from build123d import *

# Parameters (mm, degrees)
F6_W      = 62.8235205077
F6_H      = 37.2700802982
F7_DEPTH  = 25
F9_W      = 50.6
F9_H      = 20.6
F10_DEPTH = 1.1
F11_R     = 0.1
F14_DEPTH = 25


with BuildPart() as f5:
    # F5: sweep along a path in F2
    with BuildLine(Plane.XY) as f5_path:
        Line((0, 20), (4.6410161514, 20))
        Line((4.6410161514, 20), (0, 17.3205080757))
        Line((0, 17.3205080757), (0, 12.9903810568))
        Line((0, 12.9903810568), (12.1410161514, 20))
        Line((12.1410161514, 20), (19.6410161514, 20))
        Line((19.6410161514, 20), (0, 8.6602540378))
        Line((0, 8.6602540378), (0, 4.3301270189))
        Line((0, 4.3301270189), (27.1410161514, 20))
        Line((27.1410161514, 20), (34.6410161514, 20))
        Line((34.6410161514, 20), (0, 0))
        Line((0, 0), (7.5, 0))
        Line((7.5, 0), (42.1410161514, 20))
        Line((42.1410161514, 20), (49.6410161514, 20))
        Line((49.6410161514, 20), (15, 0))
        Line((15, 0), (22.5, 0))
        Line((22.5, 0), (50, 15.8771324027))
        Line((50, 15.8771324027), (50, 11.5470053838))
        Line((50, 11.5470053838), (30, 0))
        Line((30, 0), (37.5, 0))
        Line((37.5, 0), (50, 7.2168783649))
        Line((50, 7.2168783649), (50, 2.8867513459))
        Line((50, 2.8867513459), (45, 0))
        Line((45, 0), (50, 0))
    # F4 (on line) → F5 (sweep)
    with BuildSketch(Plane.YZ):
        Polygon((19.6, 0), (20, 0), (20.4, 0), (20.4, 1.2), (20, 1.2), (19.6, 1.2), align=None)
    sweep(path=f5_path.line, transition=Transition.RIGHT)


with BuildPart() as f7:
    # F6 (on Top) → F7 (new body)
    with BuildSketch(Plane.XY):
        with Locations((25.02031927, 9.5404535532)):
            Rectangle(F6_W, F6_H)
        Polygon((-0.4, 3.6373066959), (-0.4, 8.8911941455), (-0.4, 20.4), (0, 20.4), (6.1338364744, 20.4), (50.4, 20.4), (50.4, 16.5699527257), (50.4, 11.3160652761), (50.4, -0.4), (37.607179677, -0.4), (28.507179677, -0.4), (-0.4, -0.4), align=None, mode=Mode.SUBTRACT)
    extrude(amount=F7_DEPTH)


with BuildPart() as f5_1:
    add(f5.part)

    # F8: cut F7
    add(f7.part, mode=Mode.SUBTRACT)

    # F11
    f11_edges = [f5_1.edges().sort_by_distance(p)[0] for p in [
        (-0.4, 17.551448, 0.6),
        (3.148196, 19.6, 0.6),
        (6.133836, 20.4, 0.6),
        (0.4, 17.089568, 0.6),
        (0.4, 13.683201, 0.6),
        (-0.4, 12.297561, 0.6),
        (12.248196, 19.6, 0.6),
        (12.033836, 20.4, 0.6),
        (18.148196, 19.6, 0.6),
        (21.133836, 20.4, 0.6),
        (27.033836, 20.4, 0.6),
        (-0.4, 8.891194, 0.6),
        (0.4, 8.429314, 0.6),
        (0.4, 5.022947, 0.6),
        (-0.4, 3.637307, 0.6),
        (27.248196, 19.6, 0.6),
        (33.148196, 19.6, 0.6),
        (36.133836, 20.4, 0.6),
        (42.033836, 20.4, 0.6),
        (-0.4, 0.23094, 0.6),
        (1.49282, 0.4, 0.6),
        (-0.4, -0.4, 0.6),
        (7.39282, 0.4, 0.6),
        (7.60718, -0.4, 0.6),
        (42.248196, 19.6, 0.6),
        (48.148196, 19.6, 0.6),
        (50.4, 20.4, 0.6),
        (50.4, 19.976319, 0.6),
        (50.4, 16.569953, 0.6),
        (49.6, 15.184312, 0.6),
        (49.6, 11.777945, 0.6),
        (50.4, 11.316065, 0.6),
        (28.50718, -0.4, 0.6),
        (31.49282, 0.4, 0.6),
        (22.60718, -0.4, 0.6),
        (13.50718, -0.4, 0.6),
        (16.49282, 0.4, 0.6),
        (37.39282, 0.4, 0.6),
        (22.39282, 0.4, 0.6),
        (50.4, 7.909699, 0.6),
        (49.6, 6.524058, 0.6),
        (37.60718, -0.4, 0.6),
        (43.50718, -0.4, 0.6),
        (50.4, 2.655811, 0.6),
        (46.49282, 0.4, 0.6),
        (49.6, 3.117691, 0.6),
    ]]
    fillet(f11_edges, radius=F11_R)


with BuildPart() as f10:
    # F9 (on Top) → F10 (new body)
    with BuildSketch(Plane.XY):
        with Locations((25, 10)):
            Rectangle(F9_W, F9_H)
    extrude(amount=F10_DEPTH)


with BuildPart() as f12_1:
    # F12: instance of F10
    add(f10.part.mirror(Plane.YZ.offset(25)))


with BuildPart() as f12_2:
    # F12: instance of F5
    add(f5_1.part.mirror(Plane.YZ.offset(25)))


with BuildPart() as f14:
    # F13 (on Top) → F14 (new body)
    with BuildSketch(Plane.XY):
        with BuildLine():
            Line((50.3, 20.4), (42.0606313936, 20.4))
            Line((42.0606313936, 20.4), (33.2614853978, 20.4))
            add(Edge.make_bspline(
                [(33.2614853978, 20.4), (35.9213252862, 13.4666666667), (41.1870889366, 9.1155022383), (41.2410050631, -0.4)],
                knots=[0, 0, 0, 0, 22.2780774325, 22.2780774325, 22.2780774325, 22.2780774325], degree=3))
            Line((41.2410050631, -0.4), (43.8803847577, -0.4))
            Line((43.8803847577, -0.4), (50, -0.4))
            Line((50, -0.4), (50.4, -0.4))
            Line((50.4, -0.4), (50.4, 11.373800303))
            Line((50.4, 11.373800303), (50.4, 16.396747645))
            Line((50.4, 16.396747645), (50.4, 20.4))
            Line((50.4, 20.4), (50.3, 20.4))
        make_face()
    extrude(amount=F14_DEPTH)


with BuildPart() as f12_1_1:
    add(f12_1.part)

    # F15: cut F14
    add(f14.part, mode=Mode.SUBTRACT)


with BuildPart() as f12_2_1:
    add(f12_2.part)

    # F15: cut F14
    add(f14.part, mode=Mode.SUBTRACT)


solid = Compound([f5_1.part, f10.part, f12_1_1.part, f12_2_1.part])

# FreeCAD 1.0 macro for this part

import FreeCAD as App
import Part
import Sketcher
from FreeCAD import Vector
Q = App.Units.Quantity


def edges_at(feature, points):
    """Names of the edges that pass closest to the given points."""
    edges = feature.Shape.Edges
    near = lambda p: min(range(len(edges)), key=lambda i: edges[i].distToShape(Part.Vertex(*p))[0])
    return sorted({f"Edge{near(p) + 1}" for p in points})

doc = App.newDocument("Part")
params = doc.addObject("Spreadsheet::Sheet", "Params")
for row, (alias, value) in enumerate([
    ("sketch1_width", "0.8 mm"),
    ("sketch1_height", "1.2 mm"),
    ("sketch2_width", "5 mm"),
    ("sketch2_length", "40 mm"),
    ("sketch2_width2", "7.5 mm"),
    ("sketch3_width", "50.8 mm"),
    ("sketch3_height", "20.8 mm"),
    ("pad1_length", "25 mm"),
    ("fillet_radius", "0.1 mm"),
    ("sketch4_width", "50.6 mm"),
    ("sketch4_height", "20.6 mm"),
    ("pad2_length", "1.1 mm"),
    ("pad3_length", "25 mm"),
], start=1):
    params.set(f"A{row}", alias)
    params.set(f"B{row}", "=" + value)
    params.setAlias(f"B{row}", alias)

body = doc.addObject("PartDesign::Body", "Body")

# Sketch on YZ plane
sketch1 = body.newObject("Sketcher::SketchObject", "Sketch")
sketch1.AttachmentSupport = (doc.getObject("YZ_Plane"), [""])
sketch1.MapMode = "FlatFace"
sketch1.addGeometry(Part.LineSegment(Vector(19.6, 0, 0), Vector(20.4, 0, 0)), False)
sketch1.addGeometry(Part.LineSegment(Vector(20.4, 0, 0), Vector(20.4, 1.2, 0)), False)
sketch1.addGeometry(Part.LineSegment(Vector(20.4, 1.2, 0), Vector(19.6, 1.2, 0)), False)
sketch1.addGeometry(Part.LineSegment(Vector(19.6, 1.2, 0), Vector(19.6, 0, 0)), False)
sketch1.addConstraint(Sketcher.Constraint("Coincident", 0, 2, 1, 1))
sketch1.addConstraint(Sketcher.Constraint("Coincident", 1, 2, 2, 1))
sketch1.addConstraint(Sketcher.Constraint("Coincident", 2, 2, 3, 1))
sketch1.addConstraint(Sketcher.Constraint("Coincident", 3, 2, 0, 1))
sketch1.addConstraint(Sketcher.Constraint("Horizontal", 0))
sketch1.addConstraint(Sketcher.Constraint("Vertical", 1))
sketch1.addConstraint(Sketcher.Constraint("Horizontal", 2))
sketch1.addConstraint(Sketcher.Constraint("Vertical", 3))
sketch1.addConstraint(Sketcher.Constraint("PointOnObject", 0, 2, -1))
sketch1.addConstraint(Sketcher.Constraint("DistanceX", 0, 1, 0, 2, Q("0.8 mm")))
sketch1.addConstraint(Sketcher.Constraint("DistanceY", 1, 1, 1, 2, Q("1.2 mm")))
sketch1.addConstraint(Sketcher.Constraint("DistanceX", -1, 1, 0, 2, Q("20.4 mm")))
sketch1.setExpression("Constraints[9]", "Params.sketch1_width")
sketch1.setExpression("Constraints[10]", "Params.sketch1_height")

# Sketch on XY plane
sketch2 = body.newObject("Sketcher::SketchObject", "Sketch001")
sketch2.AttachmentSupport = (doc.getObject("XY_Plane"), [""])
sketch2.MapMode = "FlatFace"
sketch2.addGeometry(Part.LineSegment(Vector(0, 20, 0), Vector(4.6, 20, 0)), False)
sketch2.addGeometry(Part.LineSegment(Vector(4.6, 20, 0), Vector(0, 17.3, 0)), False)
sketch2.addGeometry(Part.LineSegment(Vector(0, 17.3, 0), Vector(0, 13, 0)), False)
sketch2.addGeometry(Part.LineSegment(Vector(0, 13, 0), Vector(12.1, 20, 0)), False)
sketch2.addGeometry(Part.LineSegment(Vector(12.1, 20, 0), Vector(19.6, 20, 0)), False)
sketch2.addGeometry(Part.LineSegment(Vector(19.6, 20, 0), Vector(0, 8.7, 0)), False)
sketch2.addGeometry(Part.LineSegment(Vector(0, 8.7, 0), Vector(0, 4.3, 0)), False)
sketch2.addGeometry(Part.LineSegment(Vector(0, 4.3, 0), Vector(27.1, 20, 0)), False)
sketch2.addGeometry(Part.LineSegment(Vector(27.1, 20, 0), Vector(34.6, 20, 0)), False)
sketch2.addGeometry(Part.LineSegment(Vector(34.6, 20, 0), Vector(0, 0, 0)), False)
sketch2.addGeometry(Part.LineSegment(Vector(0, 0, 0), Vector(7.5, 0, 0)), False)
sketch2.addGeometry(Part.LineSegment(Vector(7.5, 0, 0), Vector(42.1, 20, 0)), False)
sketch2.addGeometry(Part.LineSegment(Vector(42.1, 20, 0), Vector(49.6, 20, 0)), False)
sketch2.addGeometry(Part.LineSegment(Vector(49.6, 20, 0), Vector(15, 0, 0)), False)
sketch2.addGeometry(Part.LineSegment(Vector(15, 0, 0), Vector(22.5, 0, 0)), False)
sketch2.addGeometry(Part.LineSegment(Vector(22.5, 0, 0), Vector(50, 15.9, 0)), False)
sketch2.addGeometry(Part.LineSegment(Vector(50, 15.9, 0), Vector(50, 11.5, 0)), False)
sketch2.addGeometry(Part.LineSegment(Vector(50, 11.5, 0), Vector(30, 0, 0)), False)
sketch2.addGeometry(Part.LineSegment(Vector(30, 0, 0), Vector(37.5, 0, 0)), False)
sketch2.addGeometry(Part.LineSegment(Vector(37.5, 0, 0), Vector(50, 7.2, 0)), False)
sketch2.addGeometry(Part.LineSegment(Vector(50, 7.2, 0), Vector(50, 2.9, 0)), False)
sketch2.addGeometry(Part.LineSegment(Vector(50, 2.9, 0), Vector(45, 0, 0)), False)
sketch2.addGeometry(Part.LineSegment(Vector(45, 0, 0), Vector(50, 0, 0)), False)
sketch2.addConstraint(Sketcher.Constraint("Coincident", 0, 2, 1, 1))
sketch2.addConstraint(Sketcher.Constraint("Coincident", 1, 2, 2, 1))
sketch2.addConstraint(Sketcher.Constraint("Coincident", 2, 2, 3, 1))
sketch2.addConstraint(Sketcher.Constraint("Coincident", 3, 2, 4, 1))
sketch2.addConstraint(Sketcher.Constraint("Coincident", 4, 2, 5, 1))
sketch2.addConstraint(Sketcher.Constraint("Coincident", 5, 2, 6, 1))
sketch2.addConstraint(Sketcher.Constraint("Coincident", 6, 2, 7, 1))
sketch2.addConstraint(Sketcher.Constraint("Coincident", 7, 2, 8, 1))
sketch2.addConstraint(Sketcher.Constraint("Coincident", 8, 2, 9, 1))
sketch2.addConstraint(Sketcher.Constraint("Coincident", 9, 2, 10, 1))
sketch2.addConstraint(Sketcher.Constraint("Coincident", 10, 2, 11, 1))
sketch2.addConstraint(Sketcher.Constraint("Coincident", 11, 2, 12, 1))
sketch2.addConstraint(Sketcher.Constraint("Coincident", 12, 2, 13, 1))
sketch2.addConstraint(Sketcher.Constraint("Coincident", 13, 2, 14, 1))
sketch2.addConstraint(Sketcher.Constraint("Coincident", 14, 2, 15, 1))
sketch2.addConstraint(Sketcher.Constraint("Coincident", 15, 2, 16, 1))
sketch2.addConstraint(Sketcher.Constraint("Coincident", 16, 2, 17, 1))
sketch2.addConstraint(Sketcher.Constraint("Coincident", 17, 2, 18, 1))
sketch2.addConstraint(Sketcher.Constraint("Coincident", 18, 2, 19, 1))
sketch2.addConstraint(Sketcher.Constraint("Coincident", 19, 2, 20, 1))
sketch2.addConstraint(Sketcher.Constraint("Coincident", 20, 2, 21, 1))
sketch2.addConstraint(Sketcher.Constraint("Coincident", 21, 2, 22, 1))
sketch2.addConstraint(Sketcher.Constraint("Horizontal", 0))
sketch2.addConstraint(Sketcher.Constraint("Vertical", 2))
sketch2.addConstraint(Sketcher.Constraint("Horizontal", 4))
sketch2.addConstraint(Sketcher.Constraint("Vertical", 6))
sketch2.addConstraint(Sketcher.Constraint("Horizontal", 8))
sketch2.addConstraint(Sketcher.Constraint("Horizontal", 10))
sketch2.addConstraint(Sketcher.Constraint("Horizontal", 12))
sketch2.addConstraint(Sketcher.Constraint("Horizontal", 14))
sketch2.addConstraint(Sketcher.Constraint("Vertical", 16))
sketch2.addConstraint(Sketcher.Constraint("Horizontal", 18))
sketch2.addConstraint(Sketcher.Constraint("Vertical", 20))
sketch2.addConstraint(Sketcher.Constraint("Horizontal", 22))
sketch2.addConstraint(Sketcher.Constraint("Coincident", 9, 2, -1, 1))
sketch2.addConstraint(Sketcher.Constraint("PointOnObject", 0, 1, -2))
sketch2.addConstraint(Sketcher.Constraint("PointOnObject", 1, 2, -2))
sketch2.addConstraint(Sketcher.Constraint("PointOnObject", 5, 2, -2))
sketch2.addConstraint(Sketcher.Constraint("PointOnObject", 13, 2, -1))
sketch2.addConstraint(Sketcher.Constraint("PointOnObject", 17, 2, -1))
sketch2.addConstraint(Sketcher.Constraint("PointOnObject", 21, 2, -1))
sketch2.addConstraint(Sketcher.Constraint("Parallel", 1, 3))
sketch2.addConstraint(Sketcher.Constraint("Parallel", 3, 5))
sketch2.addConstraint(Sketcher.Constraint("Parallel", 5, 7))
sketch2.addConstraint(Sketcher.Constraint("Parallel", 7, 9))
sketch2.addConstraint(Sketcher.Constraint("Parallel", 9, 11))
sketch2.addConstraint(Sketcher.Constraint("Parallel", 11, 13))
sketch2.addConstraint(Sketcher.Constraint("Parallel", 13, 15))
sketch2.addConstraint(Sketcher.Constraint("Parallel", 15, 17))
sketch2.addConstraint(Sketcher.Constraint("Parallel", 17, 19))
sketch2.addConstraint(Sketcher.Constraint("Parallel", 19, 21))
sketch2.addConstraint(Sketcher.Constraint("Horizontal", 0, 2, 3, 2))
sketch2.addConstraint(Sketcher.Constraint("Horizontal", 4, 2, 7, 2))
sketch2.addConstraint(Sketcher.Constraint("Horizontal", 8, 2, 11, 2))
sketch2.addConstraint(Sketcher.Constraint("Vertical", 16, 2, 19, 2))
sketch2.addConstraint(Sketcher.Constraint("Vertical", 20, 2, 22, 2))
sketch2.addConstraint(Sketcher.Constraint("Equal", 4, 8))
sketch2.addConstraint(Sketcher.Constraint("Equal", 8, 10))
sketch2.addConstraint(Sketcher.Constraint("Equal", 10, 12))
sketch2.addConstraint(Sketcher.Constraint("Equal", 12, 14))
sketch2.addConstraint(Sketcher.Constraint("Equal", 14, 18))
sketch2.addConstraint(Sketcher.Constraint("Equal", 2, 6))
sketch2.addConstraint(Sketcher.Constraint("Equal", 6, 16))
sketch2.addConstraint(Sketcher.Constraint("Equal", 16, 20))
sketch2.addConstraint(Sketcher.Constraint("DistanceX", 22, 1, 22, 2, Q("5 mm")))
sketch2.addConstraint(Sketcher.Constraint("Angle", 1, Q("-150 deg")))
sketch2.addConstraint(Sketcher.Constraint("Distance", 9, Q("40 mm")))
sketch2.addConstraint(Sketcher.Constraint("DistanceX", 4, 1, 4, 2, Q("7.5 mm")))
sketch2.addConstraint(Sketcher.Constraint("DistanceX", -1, 1, 15, 2, Q("50 mm")))
sketch2.setExpression("Constraints[64]", "Params.sketch2_width")
sketch2.setExpression("Constraints[66]", "Params.sketch2_length")
sketch2.setExpression("Constraints[67]", "Params.sketch2_width2")
doc.recompute()

additivepipe = body.newObject("PartDesign::AdditivePipe", "AdditivePipe")
additivepipe.Profile = sketch1
additivepipe.Spine = (sketch2, ["Edge1", "Edge2", "Edge3", "Edge4", "Edge5", "Edge6", "Edge7", "Edge8", "Edge9", "Edge10", "Edge11", "Edge12", "Edge13", "Edge14", "Edge15", "Edge16", "Edge17", "Edge18", "Edge19", "Edge20", "Edge21", "Edge22", "Edge23"])
additivepipe.Transition = "Right corner"
body2 = doc.addObject("PartDesign::Body", "Body001")

# Sketch on XY plane
sketch3 = body2.newObject("Sketcher::SketchObject", "Sketch002")
sketch3.AttachmentSupport = (doc.getObject("XY_Plane001"), [""])
sketch3.MapMode = "FlatFace"
sketch3.addGeometry(Part.LineSegment(Vector(-6, 28, 0), Vector(-6, -9, 0)), False)
sketch3.addGeometry(Part.LineSegment(Vector(-6, -9, 0), Vector(56, -9, 0)), False)
sketch3.addGeometry(Part.LineSegment(Vector(56, -9, 0), Vector(56, 28, 0)), False)
sketch3.addGeometry(Part.LineSegment(Vector(56, 28, 0), Vector(-6, 28, 0)), False)
sketch3.addGeometry(Part.LineSegment(Vector(0, 0, 0), Vector(0, 20, 0)), False)
sketch3.addGeometry(Part.LineSegment(Vector(0, 20, 0), Vector(50, 20, 0)), False)
sketch3.addGeometry(Part.LineSegment(Vector(50, 20, 0), Vector(50, 0, 0)), False)
sketch3.addGeometry(Part.LineSegment(Vector(50, 0, 0), Vector(0, 0, 0)), False)
sketch3.addConstraint(Sketcher.Constraint("Coincident", 0, 2, 1, 1))
sketch3.addConstraint(Sketcher.Constraint("Coincident", 1, 2, 2, 1))
sketch3.addConstraint(Sketcher.Constraint("Coincident", 2, 2, 3, 1))
sketch3.addConstraint(Sketcher.Constraint("Coincident", 3, 2, 0, 1))
sketch3.addConstraint(Sketcher.Constraint("Coincident", 4, 2, 5, 1))
sketch3.addConstraint(Sketcher.Constraint("Coincident", 5, 2, 6, 1))
sketch3.addConstraint(Sketcher.Constraint("Coincident", 6, 2, 7, 1))
sketch3.addConstraint(Sketcher.Constraint("Coincident", 7, 2, 4, 1))
sketch3.addConstraint(Sketcher.Constraint("Vertical", 0))
sketch3.addConstraint(Sketcher.Constraint("Horizontal", 1))
sketch3.addConstraint(Sketcher.Constraint("Vertical", 2))
sketch3.addConstraint(Sketcher.Constraint("Horizontal", 3))
sketch3.addConstraint(Sketcher.Constraint("Vertical", 4))
sketch3.addConstraint(Sketcher.Constraint("Horizontal", 5))
sketch3.addConstraint(Sketcher.Constraint("Vertical", 6))
sketch3.addConstraint(Sketcher.Constraint("Horizontal", 7))
sketch3.addConstraint(Sketcher.Constraint("DistanceX", 5, 1, 5, 2, Q("50.8 mm")))
sketch3.addConstraint(Sketcher.Constraint("DistanceY", 4, 1, 4, 2, Q("20.8 mm")))
sketch3.addConstraint(Sketcher.Constraint("DistanceX", 4, 2, -1, 1, Q("0.4 mm")))
sketch3.addConstraint(Sketcher.Constraint("DistanceY", -1, 1, 4, 2, Q("20.4 mm")))
sketch3.addConstraint(Sketcher.Constraint("DistanceX", 1, 1, 1, 2, Q("62.823521 mm")))
sketch3.addConstraint(Sketcher.Constraint("DistanceY", 0, 2, 0, 1, Q("37.27008 mm")))
sketch3.addConstraint(Sketcher.Constraint("DistanceX", 0, 2, -1, 1, Q("6.391441 mm")))
sketch3.addConstraint(Sketcher.Constraint("DistanceY", 0, 2, -1, 1, Q("9.094587 mm")))
sketch3.setExpression("Constraints[16]", "Params.sketch3_width")
sketch3.setExpression("Constraints[17]", "Params.sketch3_height")
pad1 = body2.newObject("PartDesign::Pad", "Pad")
pad1.Profile = sketch3
pad1.setExpression("Length", "Params.pad1_length")
doc.recompute()

boolean = body.newObject("PartDesign::Boolean", "Boolean")
boolean.Type = "Cut"
boolean.addObjects([body2])
doc.recompute()

fillet = body.newObject("PartDesign::Fillet", "Fillet")
fillet.Base = (boolean, edges_at(boolean, [
    (-0.4, 17.551, 0.6),
    (3.148, 19.6, 0.6),
    (6.134, 20.4, 0.6),
    (0.4, 17.09, 0.6),
    (0.4, 13.683, 0.6),
    (-0.4, 12.298, 0.6),
    (12.248, 19.6, 0.6),
    (12.034, 20.4, 0.6),
    (18.148, 19.6, 0.6),
    (21.134, 20.4, 0.6),
    (27.034, 20.4, 0.6),
    (-0.4, 8.891, 0.6),
    (0.4, 8.429, 0.6),
    (0.4, 5.023, 0.6),
    (-0.4, 3.637, 0.6),
    (27.248, 19.6, 0.6),
    (33.148, 19.6, 0.6),
    (36.134, 20.4, 0.6),
    (42.034, 20.4, 0.6),
    (-0.4, 0.231, 0.6),
    (1.493, 0.4, 0.6),
    (-0.4, -0.4, 0.6),
    (7.393, 0.4, 0.6),
    (7.607, -0.4, 0.6),
    (42.248, 19.6, 0.6),
    (48.148, 19.6, 0.6),
    (50.4, 20.4, 0.6),
    (50.4, 19.976, 0.6),
    (50.4, 16.57, 0.6),
    (49.6, 15.184, 0.6),
    (49.6, 11.778, 0.6),
    (50.4, 11.316, 0.6),
    (28.507, -0.4, 0.6),
    (31.493, 0.4, 0.6),
    (22.607, -0.4, 0.6),
    (13.507, -0.4, 0.6),
    (16.493, 0.4, 0.6),
    (37.393, 0.4, 0.6),
    (22.393, 0.4, 0.6),
    (50.4, 7.91, 0.6),
    (49.6, 6.524, 0.6),
    (37.607, -0.4, 0.6),
    (43.507, -0.4, 0.6),
    (50.4, 2.656, 0.6),
    (46.493, 0.4, 0.6),
    (49.6, 3.118, 0.6),
]))
fillet.setExpression("Radius", "Params.fillet_radius")
body3 = doc.addObject("PartDesign::Body", "Body002")

# Sketch on XY plane
sketch4 = body3.newObject("Sketcher::SketchObject", "Sketch003")
sketch4.AttachmentSupport = (doc.getObject("XY_Plane002"), [""])
sketch4.MapMode = "FlatFace"
sketch4.addGeometry(Part.LineSegment(Vector(0, 20, 0), Vector(0, 0, 0)), False)
sketch4.addGeometry(Part.LineSegment(Vector(0, 0, 0), Vector(50, 0, 0)), False)
sketch4.addGeometry(Part.LineSegment(Vector(50, 0, 0), Vector(50, 20, 0)), False)
sketch4.addGeometry(Part.LineSegment(Vector(50, 20, 0), Vector(0, 20, 0)), False)
sketch4.addConstraint(Sketcher.Constraint("Coincident", 0, 2, 1, 1))
sketch4.addConstraint(Sketcher.Constraint("Coincident", 1, 2, 2, 1))
sketch4.addConstraint(Sketcher.Constraint("Coincident", 2, 2, 3, 1))
sketch4.addConstraint(Sketcher.Constraint("Coincident", 3, 2, 0, 1))
sketch4.addConstraint(Sketcher.Constraint("Vertical", 0))
sketch4.addConstraint(Sketcher.Constraint("Horizontal", 1))
sketch4.addConstraint(Sketcher.Constraint("Vertical", 2))
sketch4.addConstraint(Sketcher.Constraint("Horizontal", 3))
sketch4.addConstraint(Sketcher.Constraint("DistanceX", 1, 1, 1, 2, Q("50.6 mm")))
sketch4.addConstraint(Sketcher.Constraint("DistanceY", 0, 2, 0, 1, Q("20.6 mm")))
sketch4.addConstraint(Sketcher.Constraint("DistanceX", 0, 2, -1, 1, Q("0.3 mm")))
sketch4.addConstraint(Sketcher.Constraint("DistanceY", 0, 2, -1, 1, Q("0.3 mm")))
sketch4.setExpression("Constraints[8]", "Params.sketch4_width")
sketch4.setExpression("Constraints[9]", "Params.sketch4_height")
pad2 = body3.newObject("PartDesign::Pad", "Pad001")
pad2.Profile = sketch4
pad2.setExpression("Length", "Params.pad2_length")
body4 = doc.addObject("PartDesign::Body", "Body003")
doc.recompute()

mirroring = doc.addObject("Part::Mirroring", "Mirroring")
mirroring.Source = body3
mirroring.Base = Vector(25, 0, 0)
mirroring.Normal = Vector(1, 0, 0)
body4.BaseFeature = mirroring
doc.recompute()
body5 = doc.addObject("PartDesign::Body", "Body004")
doc.recompute()

mirroring2 = doc.addObject("Part::Mirroring", "Mirroring001")
mirroring2.Source = body
mirroring2.Base = Vector(25, 0, 0)
mirroring2.Normal = Vector(1, 0, 0)
body5.BaseFeature = mirroring2
doc.recompute()
body6 = doc.addObject("PartDesign::Body", "Body005")

# Sketch on XY plane
sketch5 = body6.newObject("Sketcher::SketchObject", "Sketch004")
sketch5.AttachmentSupport = (doc.getObject("XY_Plane005"), [""])
sketch5.MapMode = "FlatFace"
sketch5.addGeometry(Part.BSplineCurve([Vector(33.261485, 20.4, 0), Vector(35.921325, 13.466667, 0), Vector(41.187089, 9.115502, 0), Vector(41.241005, -0.4, 0)], [4, 4], [0, 22.278077433], False, 3, [1, 1, 1, 1], False), False)
sketch5.addGeometry(Part.LineSegment(Vector(41.241005, -0.4, 0), Vector(50.4, -0.4, 0)), False)
sketch5.addGeometry(Part.LineSegment(Vector(50.4, -0.4, 0), Vector(50.4, 20.4, 0)), False)
sketch5.addGeometry(Part.LineSegment(Vector(50.4, 20.4, 0), Vector(33.261485, 20.4, 0)), False)
sketch5.addConstraint(Sketcher.Constraint("Block", 0))
sketch5.addConstraint(Sketcher.Constraint("Coincident", 0, 2, 1, 1))
sketch5.addConstraint(Sketcher.Constraint("Coincident", 1, 2, 2, 1))
sketch5.addConstraint(Sketcher.Constraint("Coincident", 2, 2, 3, 1))
sketch5.addConstraint(Sketcher.Constraint("Coincident", 3, 2, 0, 1))
sketch5.addConstraint(Sketcher.Constraint("Horizontal", 1))
sketch5.addConstraint(Sketcher.Constraint("Vertical", 2))
sketch5.addConstraint(Sketcher.Constraint("Horizontal", 3))
sketch5.addConstraint(Sketcher.Constraint("DistanceX", -1, 1, 1, 2, Q("50.4 mm")))
pad3 = body6.newObject("PartDesign::Pad", "Pad002")
pad3.Profile = sketch5
pad3.setExpression("Length", "Params.pad3_length")
doc.recompute()

body7 = doc.addObject("PartDesign::Body", "Body006")
body7.BaseFeature = body6
boolean2 = body4.newObject("PartDesign::Boolean", "Boolean001")
boolean2.Type = "Cut"
boolean2.addObjects([body7])
doc.recompute()
body5.AllowCompound = True
doc.recompute()

boolean3 = body5.newObject("PartDesign::Boolean", "Boolean002")
boolean3.Type = "Cut"
boolean3.addObjects([body6])
mirroring.Visibility = False
mirroring2.Visibility = False

doc.recompute()
